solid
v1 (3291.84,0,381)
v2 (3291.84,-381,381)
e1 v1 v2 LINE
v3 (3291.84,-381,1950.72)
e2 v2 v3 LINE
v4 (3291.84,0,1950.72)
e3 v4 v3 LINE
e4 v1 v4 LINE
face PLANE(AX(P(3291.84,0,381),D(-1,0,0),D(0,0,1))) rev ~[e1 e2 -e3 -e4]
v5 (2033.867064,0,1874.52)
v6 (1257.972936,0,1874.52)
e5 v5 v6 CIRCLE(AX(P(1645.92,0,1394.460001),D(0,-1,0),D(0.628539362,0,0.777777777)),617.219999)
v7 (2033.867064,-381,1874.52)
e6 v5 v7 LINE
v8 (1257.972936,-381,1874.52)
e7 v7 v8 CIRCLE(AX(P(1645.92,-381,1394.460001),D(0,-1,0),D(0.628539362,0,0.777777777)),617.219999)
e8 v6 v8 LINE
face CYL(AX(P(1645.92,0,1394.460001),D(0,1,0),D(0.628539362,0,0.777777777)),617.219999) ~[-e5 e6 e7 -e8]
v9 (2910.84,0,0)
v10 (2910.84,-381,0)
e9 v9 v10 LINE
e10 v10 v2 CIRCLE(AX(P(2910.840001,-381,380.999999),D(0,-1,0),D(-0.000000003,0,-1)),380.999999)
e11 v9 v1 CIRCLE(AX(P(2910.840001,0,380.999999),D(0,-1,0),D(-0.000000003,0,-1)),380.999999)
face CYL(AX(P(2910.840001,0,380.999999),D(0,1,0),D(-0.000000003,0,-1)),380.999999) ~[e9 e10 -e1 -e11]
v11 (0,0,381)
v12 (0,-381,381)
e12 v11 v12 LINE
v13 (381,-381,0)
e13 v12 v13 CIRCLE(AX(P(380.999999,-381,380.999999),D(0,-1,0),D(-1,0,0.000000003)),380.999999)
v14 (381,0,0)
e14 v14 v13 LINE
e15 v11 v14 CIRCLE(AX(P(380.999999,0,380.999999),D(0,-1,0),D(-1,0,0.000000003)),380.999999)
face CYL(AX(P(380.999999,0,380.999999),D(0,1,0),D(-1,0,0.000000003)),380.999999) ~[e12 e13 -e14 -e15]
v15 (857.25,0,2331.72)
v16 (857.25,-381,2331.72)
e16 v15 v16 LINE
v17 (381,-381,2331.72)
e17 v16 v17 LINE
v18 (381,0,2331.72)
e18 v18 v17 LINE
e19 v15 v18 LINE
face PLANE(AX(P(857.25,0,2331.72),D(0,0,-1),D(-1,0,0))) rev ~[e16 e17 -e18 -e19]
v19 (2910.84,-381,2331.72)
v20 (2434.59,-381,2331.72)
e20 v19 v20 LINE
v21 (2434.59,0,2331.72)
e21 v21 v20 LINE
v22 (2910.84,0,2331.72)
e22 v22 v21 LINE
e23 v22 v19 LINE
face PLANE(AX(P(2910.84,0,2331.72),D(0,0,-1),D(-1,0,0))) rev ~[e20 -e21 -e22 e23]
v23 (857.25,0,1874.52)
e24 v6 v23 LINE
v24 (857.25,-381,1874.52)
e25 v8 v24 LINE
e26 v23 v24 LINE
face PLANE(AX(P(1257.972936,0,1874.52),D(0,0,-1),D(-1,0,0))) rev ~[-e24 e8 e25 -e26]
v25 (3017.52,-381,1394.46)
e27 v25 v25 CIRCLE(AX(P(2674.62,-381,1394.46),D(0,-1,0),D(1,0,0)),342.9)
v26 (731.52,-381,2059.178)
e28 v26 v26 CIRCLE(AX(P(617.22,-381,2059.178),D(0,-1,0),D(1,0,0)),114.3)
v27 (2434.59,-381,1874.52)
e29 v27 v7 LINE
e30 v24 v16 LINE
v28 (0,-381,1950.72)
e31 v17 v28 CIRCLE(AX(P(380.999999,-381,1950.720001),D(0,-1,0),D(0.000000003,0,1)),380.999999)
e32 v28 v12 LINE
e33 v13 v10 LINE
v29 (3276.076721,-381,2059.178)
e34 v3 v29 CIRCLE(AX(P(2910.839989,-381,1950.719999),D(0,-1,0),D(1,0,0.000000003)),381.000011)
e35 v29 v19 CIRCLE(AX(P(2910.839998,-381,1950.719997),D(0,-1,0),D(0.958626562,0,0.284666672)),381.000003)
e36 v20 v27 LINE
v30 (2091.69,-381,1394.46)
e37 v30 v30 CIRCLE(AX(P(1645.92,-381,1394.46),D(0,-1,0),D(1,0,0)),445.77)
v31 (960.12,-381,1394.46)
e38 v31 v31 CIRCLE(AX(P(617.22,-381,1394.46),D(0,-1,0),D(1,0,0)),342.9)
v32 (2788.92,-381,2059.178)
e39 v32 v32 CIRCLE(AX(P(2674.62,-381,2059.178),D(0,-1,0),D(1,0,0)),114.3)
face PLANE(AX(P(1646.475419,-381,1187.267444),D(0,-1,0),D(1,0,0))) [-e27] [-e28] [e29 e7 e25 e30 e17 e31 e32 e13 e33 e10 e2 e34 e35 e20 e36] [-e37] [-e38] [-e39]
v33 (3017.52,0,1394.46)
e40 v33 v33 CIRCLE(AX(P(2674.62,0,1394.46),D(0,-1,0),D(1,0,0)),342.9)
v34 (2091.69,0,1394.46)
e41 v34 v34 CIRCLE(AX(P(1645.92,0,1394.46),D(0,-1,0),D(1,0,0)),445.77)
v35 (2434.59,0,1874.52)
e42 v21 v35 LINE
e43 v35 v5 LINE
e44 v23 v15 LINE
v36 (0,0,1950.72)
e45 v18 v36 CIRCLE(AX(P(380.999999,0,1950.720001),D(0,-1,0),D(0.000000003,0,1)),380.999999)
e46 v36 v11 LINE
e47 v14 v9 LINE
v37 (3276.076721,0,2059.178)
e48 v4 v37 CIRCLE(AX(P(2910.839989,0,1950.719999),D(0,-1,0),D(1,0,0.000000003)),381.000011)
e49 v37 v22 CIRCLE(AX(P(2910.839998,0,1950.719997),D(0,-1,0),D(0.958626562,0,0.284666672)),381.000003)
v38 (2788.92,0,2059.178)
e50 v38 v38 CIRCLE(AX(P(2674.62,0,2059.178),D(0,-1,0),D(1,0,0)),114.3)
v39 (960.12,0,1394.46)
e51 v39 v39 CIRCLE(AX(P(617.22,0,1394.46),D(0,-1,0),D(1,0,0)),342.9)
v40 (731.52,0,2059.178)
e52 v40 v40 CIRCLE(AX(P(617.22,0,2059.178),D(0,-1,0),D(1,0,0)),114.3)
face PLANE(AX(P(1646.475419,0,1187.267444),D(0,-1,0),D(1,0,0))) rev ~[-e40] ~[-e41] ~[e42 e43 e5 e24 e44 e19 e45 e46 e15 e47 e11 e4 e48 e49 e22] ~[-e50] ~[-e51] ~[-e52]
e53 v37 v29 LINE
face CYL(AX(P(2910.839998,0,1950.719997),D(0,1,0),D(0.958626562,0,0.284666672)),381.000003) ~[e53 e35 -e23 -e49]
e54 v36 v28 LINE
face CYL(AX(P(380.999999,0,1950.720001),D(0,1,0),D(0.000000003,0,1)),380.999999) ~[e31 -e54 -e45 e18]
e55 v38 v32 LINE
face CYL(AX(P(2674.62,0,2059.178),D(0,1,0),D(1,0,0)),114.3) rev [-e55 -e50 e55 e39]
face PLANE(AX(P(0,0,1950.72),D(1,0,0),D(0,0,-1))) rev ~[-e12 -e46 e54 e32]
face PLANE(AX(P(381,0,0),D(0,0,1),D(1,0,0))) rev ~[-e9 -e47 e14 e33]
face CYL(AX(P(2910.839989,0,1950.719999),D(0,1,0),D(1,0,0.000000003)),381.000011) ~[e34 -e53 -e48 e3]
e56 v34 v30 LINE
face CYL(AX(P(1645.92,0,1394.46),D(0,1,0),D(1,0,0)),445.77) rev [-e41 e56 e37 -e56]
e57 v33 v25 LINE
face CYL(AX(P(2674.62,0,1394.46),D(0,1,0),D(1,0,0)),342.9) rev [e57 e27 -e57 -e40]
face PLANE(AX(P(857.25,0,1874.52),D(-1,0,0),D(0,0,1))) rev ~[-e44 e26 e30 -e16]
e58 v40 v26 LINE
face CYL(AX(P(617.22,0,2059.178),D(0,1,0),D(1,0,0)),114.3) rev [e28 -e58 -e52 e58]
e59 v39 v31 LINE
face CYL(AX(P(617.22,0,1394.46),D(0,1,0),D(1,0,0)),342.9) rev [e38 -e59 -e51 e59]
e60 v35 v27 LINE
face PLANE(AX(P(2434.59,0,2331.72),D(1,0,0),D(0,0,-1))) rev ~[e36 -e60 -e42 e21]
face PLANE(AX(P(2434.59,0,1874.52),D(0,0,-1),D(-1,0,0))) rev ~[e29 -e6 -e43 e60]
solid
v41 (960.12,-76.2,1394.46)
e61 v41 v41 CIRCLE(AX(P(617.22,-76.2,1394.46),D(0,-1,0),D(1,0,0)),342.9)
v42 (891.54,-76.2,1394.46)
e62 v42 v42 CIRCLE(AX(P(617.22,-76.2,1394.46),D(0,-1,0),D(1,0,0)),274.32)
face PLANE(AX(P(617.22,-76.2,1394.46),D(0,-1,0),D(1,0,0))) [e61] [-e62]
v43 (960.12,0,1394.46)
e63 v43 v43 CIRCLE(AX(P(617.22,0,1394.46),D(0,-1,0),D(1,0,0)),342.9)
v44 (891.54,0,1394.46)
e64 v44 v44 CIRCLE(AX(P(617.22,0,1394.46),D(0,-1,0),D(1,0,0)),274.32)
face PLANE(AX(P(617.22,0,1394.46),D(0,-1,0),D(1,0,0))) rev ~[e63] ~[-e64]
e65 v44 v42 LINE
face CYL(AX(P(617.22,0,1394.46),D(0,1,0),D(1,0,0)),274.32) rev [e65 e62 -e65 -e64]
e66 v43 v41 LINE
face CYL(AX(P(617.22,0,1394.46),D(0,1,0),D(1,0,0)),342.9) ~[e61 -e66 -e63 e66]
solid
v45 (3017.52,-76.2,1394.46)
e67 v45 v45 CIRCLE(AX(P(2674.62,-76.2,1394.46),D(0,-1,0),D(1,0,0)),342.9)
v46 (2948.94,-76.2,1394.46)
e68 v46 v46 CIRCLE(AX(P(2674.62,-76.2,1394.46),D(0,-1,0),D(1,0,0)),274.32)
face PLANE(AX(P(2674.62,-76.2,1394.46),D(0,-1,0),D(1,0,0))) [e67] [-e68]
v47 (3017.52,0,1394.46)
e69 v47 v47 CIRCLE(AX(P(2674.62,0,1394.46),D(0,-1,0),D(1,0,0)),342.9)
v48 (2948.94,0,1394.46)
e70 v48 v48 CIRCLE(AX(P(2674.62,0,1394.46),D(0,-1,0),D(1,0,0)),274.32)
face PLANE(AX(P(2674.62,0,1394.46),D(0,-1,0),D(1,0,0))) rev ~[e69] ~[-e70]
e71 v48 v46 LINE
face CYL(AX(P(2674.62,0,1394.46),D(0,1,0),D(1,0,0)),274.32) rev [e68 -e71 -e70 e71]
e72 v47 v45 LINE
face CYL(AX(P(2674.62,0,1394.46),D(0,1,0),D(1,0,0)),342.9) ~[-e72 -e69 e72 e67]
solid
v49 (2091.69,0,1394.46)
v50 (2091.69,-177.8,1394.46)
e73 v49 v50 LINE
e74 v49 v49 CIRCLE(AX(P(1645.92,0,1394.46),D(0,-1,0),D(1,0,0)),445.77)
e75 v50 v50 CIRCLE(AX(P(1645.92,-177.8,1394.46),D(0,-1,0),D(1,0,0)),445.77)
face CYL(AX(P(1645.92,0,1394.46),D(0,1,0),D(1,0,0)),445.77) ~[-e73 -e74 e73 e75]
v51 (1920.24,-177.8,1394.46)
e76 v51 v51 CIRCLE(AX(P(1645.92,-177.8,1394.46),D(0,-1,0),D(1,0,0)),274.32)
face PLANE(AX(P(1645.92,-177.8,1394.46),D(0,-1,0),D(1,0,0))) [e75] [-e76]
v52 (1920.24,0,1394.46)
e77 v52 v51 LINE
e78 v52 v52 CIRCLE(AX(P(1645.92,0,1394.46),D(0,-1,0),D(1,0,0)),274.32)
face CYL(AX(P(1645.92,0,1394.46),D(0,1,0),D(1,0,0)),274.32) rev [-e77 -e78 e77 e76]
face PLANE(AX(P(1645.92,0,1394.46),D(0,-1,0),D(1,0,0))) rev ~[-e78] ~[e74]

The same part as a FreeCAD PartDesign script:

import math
import FreeCAD as App
import Part
import Sketcher
from FreeCAD import Vector
Q = App.Units.Quantity

doc = App.newDocument("Part")
params = doc.addObject("Spreadsheet::Sheet", "Params")
for row, (alias, value) in enumerate([
    ("sketch1_diameter", "27 in"),
    ("sketch1_diameter2", "21.6 in"),
    ("pad1_length", "3 in"),
    ("sketch2_diameter", "35.1 in"),
    ("sketch2_diameter2", "21.6 in"),
    ("pad2_length", "7 in"),
    ("sketch3_diameter", "27 in"),
    ("sketch3_diameter2", "9 in"),
    ("sketch3_radius", "15 in"),
    ("sketch3_diameter3", "35.1 in"),
    ("sketch3_radius2", "24.3 in"),
    ("pad3_length", "15 in"),
], start=1):
    params.set(f"A{row}", alias)
    params.set(f"B{row}", "=" + value)
    params.setAlias(f"B{row}", alias)

body = doc.addObject("PartDesign::Body", "Body")
body.AllowCompound = True

sketch1 = doc.addObject("Sketcher::SketchObject", "Sketch")
body.addObject(sketch1)
sketch1.AttachmentSupport = (doc.XZ_Plane, [""])
sketch1.MapMode = "FlatFace"
sketch1.addGeometry([
    Part.Circle(Vector(617, 1394, 0), Vector(0, 0, 1), 343),
    Part.Circle(Vector(617, 1394, 0), Vector(0, 0, 1), 274),
    Part.Circle(Vector(2675, 1394, 0), Vector(0, 0, 1), 343),
    Part.Circle(Vector(2675, 1394, 0), Vector(0, 0, 1), 274),
], False)
sketch1.addConstraint([
    Sketcher.Constraint("Coincident", 1, 3, 0, 3),
    Sketcher.Constraint("Coincident", 3, 3, 2, 3),
    Sketcher.Constraint("Equal", 0, 2),
    Sketcher.Constraint("Equal", 1, 3),
    Sketcher.Constraint("Horizontal", 1, 3, 2, 3),
    Sketcher.Constraint("Diameter", 0, Q("27 in")),
    Sketcher.Constraint("Diameter", 1, Q("21.6 in")),
    Sketcher.Constraint("DistanceX", 0, 3, 2, 3, Q("81 in")),
    Sketcher.Constraint("DistanceX", -1, 1, 0, 3, Q("24.3 in")),
    Sketcher.Constraint("DistanceY", -1, 1, 0, 3, Q("54.9 in")),
])
sketch1.setExpression("Constraints[5]", "Params.sketch1_diameter")
sketch1.setExpression("Constraints[6]", "Params.sketch1_diameter2")
pad1 = doc.addObject("PartDesign::Pad", "Pad")
body.addObject(pad1)
pad1.Profile = sketch1
pad1.setExpression("Length", "Params.pad1_length")
body2 = doc.addObject("PartDesign::Body", "Body001")

sketch2 = doc.addObject("Sketcher::SketchObject", "Sketch001")
body2.addObject(sketch2)
sketch2.AttachmentSupport = (doc.getObject("XZ_Plane001"), [""])
sketch2.MapMode = "FlatFace"
sketch2.addGeometry([
    Part.Circle(Vector(1646, 1394, 0), Vector(0, 0, 1), 446),
    Part.Circle(Vector(1646, 1394, 0), Vector(0, 0, 1), 274),
], False)
sketch2.addConstraint([
    Sketcher.Constraint("Coincident", 1, 3, 0, 3),
    Sketcher.Constraint("Diameter", 0, Q("35.1 in")),
    Sketcher.Constraint("Diameter", 1, Q("21.6 in")),
    Sketcher.Constraint("DistanceX", -1, 1, 0, 3, Q("64.8 in")),
    Sketcher.Constraint("DistanceY", -1, 1, 0, 3, Q("54.9 in")),
])
sketch2.setExpression("Constraints[1]", "Params.sketch2_diameter")
sketch2.setExpression("Constraints[2]", "Params.sketch2_diameter2")
pad2 = doc.addObject("PartDesign::Pad", "Pad001")
body2.addObject(pad2)
pad2.Profile = sketch2
pad2.setExpression("Length", "Params.pad2_length")
body3 = doc.addObject("PartDesign::Body", "Body002")

sketch3 = doc.addObject("Sketcher::SketchObject", "Sketch002")
body3.addObject(sketch3)
sketch3.AttachmentSupport = (doc.getObject("XZ_Plane002"), [""])
sketch3.MapMode = "FlatFace"
sketch3.addGeometry([
    Part.ArcOfCircle(Part.Circle(Vector(381, 381, 0), Vector(0, 0, 1), 381), math.radians(180), math.radians(270)),
    Part.LineSegment(Vector(381, 0, 0), Vector(2911, 0, 0)),
    Part.ArcOfCircle(Part.Circle(Vector(2911, 381, 0), Vector(0, 0, 1), 381), math.radians(-90), math.radians(0)),
    Part.LineSegment(Vector(3292, 381, 0), Vector(3292, 1951, 0)),
    Part.ArcOfCircle(Part.Circle(Vector(2911, 1951, 0), Vector(0, 0, 1), 381), math.radians(0), math.radians(16.54)),
    Part.ArcOfCircle(Part.Circle(Vector(2911, 1951, 0), Vector(0, 0, 1), 381), math.radians(17), math.radians(90)),
    Part.LineSegment(Vector(2911, 2332, 0), Vector(2435, 2332, 0)),
    Part.LineSegment(Vector(2435, 2332, 0), Vector(2435, 1875, 0)),
    Part.LineSegment(Vector(2435, 1875, 0), Vector(2034, 1875, 0)),
    Part.ArcOfCircle(Part.Circle(Vector(1646, 1394, 0), Vector(0, 0, 1), 617), math.radians(51), math.radians(129)),
    Part.LineSegment(Vector(1258, 1875, 0), Vector(857, 1875, 0)),
    Part.LineSegment(Vector(857, 1875, 0), Vector(857, 2332, 0)),
    Part.LineSegment(Vector(857, 2332, 0), Vector(381, 2332, 0)),
    Part.ArcOfCircle(Part.Circle(Vector(381, 1951, 0), Vector(0, 0, 1), 381), math.radians(90), math.radians(180)),
    Part.LineSegment(Vector(0, 1951, 0), Vector(0, 381, 0)),
    Part.Circle(Vector(617, 1394, 0), Vector(0, 0, 1), 343),
    Part.Circle(Vector(1646, 1394, 0), Vector(0, 0, 1), 446),
    Part.Circle(Vector(2675, 1394, 0), Vector(0, 0, 1), 343),
    Part.Circle(Vector(617, 2059, 0), Vector(0, 0, 1), 114),
    Part.Circle(Vector(2675, 2059, 0), Vector(0, 0, 1), 114),
], False)
sketch3.addConstraint([
    Sketcher.Constraint("Tangent", 0, 2, 1, 1),
    Sketcher.Constraint("Tangent", 1, 2, 2, 1),
    Sketcher.Constraint("Tangent", 2, 2, 3, 1),
    Sketcher.Constraint("Tangent", 3, 2, 4, 1),
    Sketcher.Constraint("Tangent", 4, 2, 5, 1),
    Sketcher.Constraint("Tangent", 5, 2, 6, 1),
    Sketcher.Constraint("Coincident", 6, 2, 7, 1),
    Sketcher.Constraint("Coincident", 7, 2, 8, 1),
    Sketcher.Constraint("Coincident", 8, 2, 9, 1),
    Sketcher.Constraint("Coincident", 9, 2, 10, 1),
    Sketcher.Constraint("Coincident", 10, 2, 11, 1),
    Sketcher.Constraint("Coincident", 11, 2, 12, 1),
    Sketcher.Constraint("Tangent", 12, 2, 13, 1),
    Sketcher.Constraint("Tangent", 13, 2, 14, 1),
    Sketcher.Constraint("Tangent", 14, 2, 0, 1),
    Sketcher.Constraint("Horizontal", 1),
    Sketcher.Constraint("Vertical", 3),
    Sketcher.Constraint("Horizontal", 6),
    Sketcher.Constraint("Vertical", 7),
    Sketcher.Constraint("Horizontal", 8),
    Sketcher.Constraint("Horizontal", 10),
    Sketcher.Constraint("Vertical", 11),
    Sketcher.Constraint("Horizontal", 12),
    Sketcher.Constraint("Vertical", 14),
    Sketcher.Constraint("Coincident", 16, 3, 9, 3),
    Sketcher.Constraint("Equal", 0, 2),
    Sketcher.Constraint("Equal", 2, 13),
    Sketcher.Constraint("Equal", 15, 17),
    Sketcher.Constraint("Equal", 18, 19),
    Sketcher.Constraint("PointOnObject", 0, 2, -1),
    Sketcher.Constraint("PointOnObject", 13, 2, -2),
    Sketcher.Constraint("Horizontal", 9, 3, 15, 3),
    Sketcher.Constraint("Horizontal", 16, 3, 17, 3),
    Sketcher.Constraint("Horizontal", 18, 3, 19, 3),
    Sketcher.Constraint("Horizontal", 13, 3, 3, 2),
    Sketcher.Constraint("Horizontal", 19, 3, 4, 2),
    Sketcher.Constraint("Horizontal", 6, 2, 11, 2),
    Sketcher.Constraint("Vertical", 15, 3, 18, 3),
    Sketcher.Constraint("Vertical", 17, 3, 19, 3),
    Sketcher.Constraint("Vertical", 5, 3, 1, 2),
    Sketcher.Constraint("Equal", 8, 10),
    Sketcher.Constraint("Equal", 6, 12),
    Sketcher.Constraint("Equal", 7, 11),
    Sketcher.Constraint("Diameter", 15, Q("27 in")),
    Sketcher.Constraint("Diameter", 18, Q("9 in")),
    Sketcher.Constraint("Radius", 0, Q("15 in")),
    Sketcher.Constraint("Diameter", 16, Q("35.1 in")),
    Sketcher.Constraint("Radius", 9, Q("24.3 in")),
    Sketcher.Constraint("DistanceY", 7, 2, 7, 1, Q("18 in")),
    Sketcher.Constraint("DistanceX", 1, 1, 1, 2, Q("99.6 in")),
    Sketcher.Constraint("DistanceY", 3, 1, 3, 2, Q("61.8 in")),
    Sketcher.Constraint("DistanceX", 6, 2, 6, 1, Q("18.75 in")),
    Sketcher.Constraint("DistanceY", -1, 1, 9, 3, Q("54.9 in")),
    Sketcher.Constraint("DistanceX", -1, 1, 15, 3, Q("24.3 in")),
    Sketcher.Constraint("DistanceX", -1, 1, 17, 3, Q("105.3 in")),
    Sketcher.Constraint("DistanceY", -1, 1, 18, 3, Q("81.07 in")),
])
sketch3.setExpression("Constraints[43]", "Params.sketch3_diameter")
sketch3.setExpression("Constraints[44]", "Params.sketch3_diameter2")
sketch3.setExpression("Constraints[45]", "Params.sketch3_radius")
sketch3.setExpression("Constraints[46]", "Params.sketch3_diameter3")
sketch3.setExpression("Constraints[47]", "Params.sketch3_radius2")
pad3 = doc.addObject("PartDesign::Pad", "Pad002")
body3.addObject(pad3)
pad3.Profile = sketch3
pad3.setExpression("Length", "Params.pad3_length")

doc.recompute()
